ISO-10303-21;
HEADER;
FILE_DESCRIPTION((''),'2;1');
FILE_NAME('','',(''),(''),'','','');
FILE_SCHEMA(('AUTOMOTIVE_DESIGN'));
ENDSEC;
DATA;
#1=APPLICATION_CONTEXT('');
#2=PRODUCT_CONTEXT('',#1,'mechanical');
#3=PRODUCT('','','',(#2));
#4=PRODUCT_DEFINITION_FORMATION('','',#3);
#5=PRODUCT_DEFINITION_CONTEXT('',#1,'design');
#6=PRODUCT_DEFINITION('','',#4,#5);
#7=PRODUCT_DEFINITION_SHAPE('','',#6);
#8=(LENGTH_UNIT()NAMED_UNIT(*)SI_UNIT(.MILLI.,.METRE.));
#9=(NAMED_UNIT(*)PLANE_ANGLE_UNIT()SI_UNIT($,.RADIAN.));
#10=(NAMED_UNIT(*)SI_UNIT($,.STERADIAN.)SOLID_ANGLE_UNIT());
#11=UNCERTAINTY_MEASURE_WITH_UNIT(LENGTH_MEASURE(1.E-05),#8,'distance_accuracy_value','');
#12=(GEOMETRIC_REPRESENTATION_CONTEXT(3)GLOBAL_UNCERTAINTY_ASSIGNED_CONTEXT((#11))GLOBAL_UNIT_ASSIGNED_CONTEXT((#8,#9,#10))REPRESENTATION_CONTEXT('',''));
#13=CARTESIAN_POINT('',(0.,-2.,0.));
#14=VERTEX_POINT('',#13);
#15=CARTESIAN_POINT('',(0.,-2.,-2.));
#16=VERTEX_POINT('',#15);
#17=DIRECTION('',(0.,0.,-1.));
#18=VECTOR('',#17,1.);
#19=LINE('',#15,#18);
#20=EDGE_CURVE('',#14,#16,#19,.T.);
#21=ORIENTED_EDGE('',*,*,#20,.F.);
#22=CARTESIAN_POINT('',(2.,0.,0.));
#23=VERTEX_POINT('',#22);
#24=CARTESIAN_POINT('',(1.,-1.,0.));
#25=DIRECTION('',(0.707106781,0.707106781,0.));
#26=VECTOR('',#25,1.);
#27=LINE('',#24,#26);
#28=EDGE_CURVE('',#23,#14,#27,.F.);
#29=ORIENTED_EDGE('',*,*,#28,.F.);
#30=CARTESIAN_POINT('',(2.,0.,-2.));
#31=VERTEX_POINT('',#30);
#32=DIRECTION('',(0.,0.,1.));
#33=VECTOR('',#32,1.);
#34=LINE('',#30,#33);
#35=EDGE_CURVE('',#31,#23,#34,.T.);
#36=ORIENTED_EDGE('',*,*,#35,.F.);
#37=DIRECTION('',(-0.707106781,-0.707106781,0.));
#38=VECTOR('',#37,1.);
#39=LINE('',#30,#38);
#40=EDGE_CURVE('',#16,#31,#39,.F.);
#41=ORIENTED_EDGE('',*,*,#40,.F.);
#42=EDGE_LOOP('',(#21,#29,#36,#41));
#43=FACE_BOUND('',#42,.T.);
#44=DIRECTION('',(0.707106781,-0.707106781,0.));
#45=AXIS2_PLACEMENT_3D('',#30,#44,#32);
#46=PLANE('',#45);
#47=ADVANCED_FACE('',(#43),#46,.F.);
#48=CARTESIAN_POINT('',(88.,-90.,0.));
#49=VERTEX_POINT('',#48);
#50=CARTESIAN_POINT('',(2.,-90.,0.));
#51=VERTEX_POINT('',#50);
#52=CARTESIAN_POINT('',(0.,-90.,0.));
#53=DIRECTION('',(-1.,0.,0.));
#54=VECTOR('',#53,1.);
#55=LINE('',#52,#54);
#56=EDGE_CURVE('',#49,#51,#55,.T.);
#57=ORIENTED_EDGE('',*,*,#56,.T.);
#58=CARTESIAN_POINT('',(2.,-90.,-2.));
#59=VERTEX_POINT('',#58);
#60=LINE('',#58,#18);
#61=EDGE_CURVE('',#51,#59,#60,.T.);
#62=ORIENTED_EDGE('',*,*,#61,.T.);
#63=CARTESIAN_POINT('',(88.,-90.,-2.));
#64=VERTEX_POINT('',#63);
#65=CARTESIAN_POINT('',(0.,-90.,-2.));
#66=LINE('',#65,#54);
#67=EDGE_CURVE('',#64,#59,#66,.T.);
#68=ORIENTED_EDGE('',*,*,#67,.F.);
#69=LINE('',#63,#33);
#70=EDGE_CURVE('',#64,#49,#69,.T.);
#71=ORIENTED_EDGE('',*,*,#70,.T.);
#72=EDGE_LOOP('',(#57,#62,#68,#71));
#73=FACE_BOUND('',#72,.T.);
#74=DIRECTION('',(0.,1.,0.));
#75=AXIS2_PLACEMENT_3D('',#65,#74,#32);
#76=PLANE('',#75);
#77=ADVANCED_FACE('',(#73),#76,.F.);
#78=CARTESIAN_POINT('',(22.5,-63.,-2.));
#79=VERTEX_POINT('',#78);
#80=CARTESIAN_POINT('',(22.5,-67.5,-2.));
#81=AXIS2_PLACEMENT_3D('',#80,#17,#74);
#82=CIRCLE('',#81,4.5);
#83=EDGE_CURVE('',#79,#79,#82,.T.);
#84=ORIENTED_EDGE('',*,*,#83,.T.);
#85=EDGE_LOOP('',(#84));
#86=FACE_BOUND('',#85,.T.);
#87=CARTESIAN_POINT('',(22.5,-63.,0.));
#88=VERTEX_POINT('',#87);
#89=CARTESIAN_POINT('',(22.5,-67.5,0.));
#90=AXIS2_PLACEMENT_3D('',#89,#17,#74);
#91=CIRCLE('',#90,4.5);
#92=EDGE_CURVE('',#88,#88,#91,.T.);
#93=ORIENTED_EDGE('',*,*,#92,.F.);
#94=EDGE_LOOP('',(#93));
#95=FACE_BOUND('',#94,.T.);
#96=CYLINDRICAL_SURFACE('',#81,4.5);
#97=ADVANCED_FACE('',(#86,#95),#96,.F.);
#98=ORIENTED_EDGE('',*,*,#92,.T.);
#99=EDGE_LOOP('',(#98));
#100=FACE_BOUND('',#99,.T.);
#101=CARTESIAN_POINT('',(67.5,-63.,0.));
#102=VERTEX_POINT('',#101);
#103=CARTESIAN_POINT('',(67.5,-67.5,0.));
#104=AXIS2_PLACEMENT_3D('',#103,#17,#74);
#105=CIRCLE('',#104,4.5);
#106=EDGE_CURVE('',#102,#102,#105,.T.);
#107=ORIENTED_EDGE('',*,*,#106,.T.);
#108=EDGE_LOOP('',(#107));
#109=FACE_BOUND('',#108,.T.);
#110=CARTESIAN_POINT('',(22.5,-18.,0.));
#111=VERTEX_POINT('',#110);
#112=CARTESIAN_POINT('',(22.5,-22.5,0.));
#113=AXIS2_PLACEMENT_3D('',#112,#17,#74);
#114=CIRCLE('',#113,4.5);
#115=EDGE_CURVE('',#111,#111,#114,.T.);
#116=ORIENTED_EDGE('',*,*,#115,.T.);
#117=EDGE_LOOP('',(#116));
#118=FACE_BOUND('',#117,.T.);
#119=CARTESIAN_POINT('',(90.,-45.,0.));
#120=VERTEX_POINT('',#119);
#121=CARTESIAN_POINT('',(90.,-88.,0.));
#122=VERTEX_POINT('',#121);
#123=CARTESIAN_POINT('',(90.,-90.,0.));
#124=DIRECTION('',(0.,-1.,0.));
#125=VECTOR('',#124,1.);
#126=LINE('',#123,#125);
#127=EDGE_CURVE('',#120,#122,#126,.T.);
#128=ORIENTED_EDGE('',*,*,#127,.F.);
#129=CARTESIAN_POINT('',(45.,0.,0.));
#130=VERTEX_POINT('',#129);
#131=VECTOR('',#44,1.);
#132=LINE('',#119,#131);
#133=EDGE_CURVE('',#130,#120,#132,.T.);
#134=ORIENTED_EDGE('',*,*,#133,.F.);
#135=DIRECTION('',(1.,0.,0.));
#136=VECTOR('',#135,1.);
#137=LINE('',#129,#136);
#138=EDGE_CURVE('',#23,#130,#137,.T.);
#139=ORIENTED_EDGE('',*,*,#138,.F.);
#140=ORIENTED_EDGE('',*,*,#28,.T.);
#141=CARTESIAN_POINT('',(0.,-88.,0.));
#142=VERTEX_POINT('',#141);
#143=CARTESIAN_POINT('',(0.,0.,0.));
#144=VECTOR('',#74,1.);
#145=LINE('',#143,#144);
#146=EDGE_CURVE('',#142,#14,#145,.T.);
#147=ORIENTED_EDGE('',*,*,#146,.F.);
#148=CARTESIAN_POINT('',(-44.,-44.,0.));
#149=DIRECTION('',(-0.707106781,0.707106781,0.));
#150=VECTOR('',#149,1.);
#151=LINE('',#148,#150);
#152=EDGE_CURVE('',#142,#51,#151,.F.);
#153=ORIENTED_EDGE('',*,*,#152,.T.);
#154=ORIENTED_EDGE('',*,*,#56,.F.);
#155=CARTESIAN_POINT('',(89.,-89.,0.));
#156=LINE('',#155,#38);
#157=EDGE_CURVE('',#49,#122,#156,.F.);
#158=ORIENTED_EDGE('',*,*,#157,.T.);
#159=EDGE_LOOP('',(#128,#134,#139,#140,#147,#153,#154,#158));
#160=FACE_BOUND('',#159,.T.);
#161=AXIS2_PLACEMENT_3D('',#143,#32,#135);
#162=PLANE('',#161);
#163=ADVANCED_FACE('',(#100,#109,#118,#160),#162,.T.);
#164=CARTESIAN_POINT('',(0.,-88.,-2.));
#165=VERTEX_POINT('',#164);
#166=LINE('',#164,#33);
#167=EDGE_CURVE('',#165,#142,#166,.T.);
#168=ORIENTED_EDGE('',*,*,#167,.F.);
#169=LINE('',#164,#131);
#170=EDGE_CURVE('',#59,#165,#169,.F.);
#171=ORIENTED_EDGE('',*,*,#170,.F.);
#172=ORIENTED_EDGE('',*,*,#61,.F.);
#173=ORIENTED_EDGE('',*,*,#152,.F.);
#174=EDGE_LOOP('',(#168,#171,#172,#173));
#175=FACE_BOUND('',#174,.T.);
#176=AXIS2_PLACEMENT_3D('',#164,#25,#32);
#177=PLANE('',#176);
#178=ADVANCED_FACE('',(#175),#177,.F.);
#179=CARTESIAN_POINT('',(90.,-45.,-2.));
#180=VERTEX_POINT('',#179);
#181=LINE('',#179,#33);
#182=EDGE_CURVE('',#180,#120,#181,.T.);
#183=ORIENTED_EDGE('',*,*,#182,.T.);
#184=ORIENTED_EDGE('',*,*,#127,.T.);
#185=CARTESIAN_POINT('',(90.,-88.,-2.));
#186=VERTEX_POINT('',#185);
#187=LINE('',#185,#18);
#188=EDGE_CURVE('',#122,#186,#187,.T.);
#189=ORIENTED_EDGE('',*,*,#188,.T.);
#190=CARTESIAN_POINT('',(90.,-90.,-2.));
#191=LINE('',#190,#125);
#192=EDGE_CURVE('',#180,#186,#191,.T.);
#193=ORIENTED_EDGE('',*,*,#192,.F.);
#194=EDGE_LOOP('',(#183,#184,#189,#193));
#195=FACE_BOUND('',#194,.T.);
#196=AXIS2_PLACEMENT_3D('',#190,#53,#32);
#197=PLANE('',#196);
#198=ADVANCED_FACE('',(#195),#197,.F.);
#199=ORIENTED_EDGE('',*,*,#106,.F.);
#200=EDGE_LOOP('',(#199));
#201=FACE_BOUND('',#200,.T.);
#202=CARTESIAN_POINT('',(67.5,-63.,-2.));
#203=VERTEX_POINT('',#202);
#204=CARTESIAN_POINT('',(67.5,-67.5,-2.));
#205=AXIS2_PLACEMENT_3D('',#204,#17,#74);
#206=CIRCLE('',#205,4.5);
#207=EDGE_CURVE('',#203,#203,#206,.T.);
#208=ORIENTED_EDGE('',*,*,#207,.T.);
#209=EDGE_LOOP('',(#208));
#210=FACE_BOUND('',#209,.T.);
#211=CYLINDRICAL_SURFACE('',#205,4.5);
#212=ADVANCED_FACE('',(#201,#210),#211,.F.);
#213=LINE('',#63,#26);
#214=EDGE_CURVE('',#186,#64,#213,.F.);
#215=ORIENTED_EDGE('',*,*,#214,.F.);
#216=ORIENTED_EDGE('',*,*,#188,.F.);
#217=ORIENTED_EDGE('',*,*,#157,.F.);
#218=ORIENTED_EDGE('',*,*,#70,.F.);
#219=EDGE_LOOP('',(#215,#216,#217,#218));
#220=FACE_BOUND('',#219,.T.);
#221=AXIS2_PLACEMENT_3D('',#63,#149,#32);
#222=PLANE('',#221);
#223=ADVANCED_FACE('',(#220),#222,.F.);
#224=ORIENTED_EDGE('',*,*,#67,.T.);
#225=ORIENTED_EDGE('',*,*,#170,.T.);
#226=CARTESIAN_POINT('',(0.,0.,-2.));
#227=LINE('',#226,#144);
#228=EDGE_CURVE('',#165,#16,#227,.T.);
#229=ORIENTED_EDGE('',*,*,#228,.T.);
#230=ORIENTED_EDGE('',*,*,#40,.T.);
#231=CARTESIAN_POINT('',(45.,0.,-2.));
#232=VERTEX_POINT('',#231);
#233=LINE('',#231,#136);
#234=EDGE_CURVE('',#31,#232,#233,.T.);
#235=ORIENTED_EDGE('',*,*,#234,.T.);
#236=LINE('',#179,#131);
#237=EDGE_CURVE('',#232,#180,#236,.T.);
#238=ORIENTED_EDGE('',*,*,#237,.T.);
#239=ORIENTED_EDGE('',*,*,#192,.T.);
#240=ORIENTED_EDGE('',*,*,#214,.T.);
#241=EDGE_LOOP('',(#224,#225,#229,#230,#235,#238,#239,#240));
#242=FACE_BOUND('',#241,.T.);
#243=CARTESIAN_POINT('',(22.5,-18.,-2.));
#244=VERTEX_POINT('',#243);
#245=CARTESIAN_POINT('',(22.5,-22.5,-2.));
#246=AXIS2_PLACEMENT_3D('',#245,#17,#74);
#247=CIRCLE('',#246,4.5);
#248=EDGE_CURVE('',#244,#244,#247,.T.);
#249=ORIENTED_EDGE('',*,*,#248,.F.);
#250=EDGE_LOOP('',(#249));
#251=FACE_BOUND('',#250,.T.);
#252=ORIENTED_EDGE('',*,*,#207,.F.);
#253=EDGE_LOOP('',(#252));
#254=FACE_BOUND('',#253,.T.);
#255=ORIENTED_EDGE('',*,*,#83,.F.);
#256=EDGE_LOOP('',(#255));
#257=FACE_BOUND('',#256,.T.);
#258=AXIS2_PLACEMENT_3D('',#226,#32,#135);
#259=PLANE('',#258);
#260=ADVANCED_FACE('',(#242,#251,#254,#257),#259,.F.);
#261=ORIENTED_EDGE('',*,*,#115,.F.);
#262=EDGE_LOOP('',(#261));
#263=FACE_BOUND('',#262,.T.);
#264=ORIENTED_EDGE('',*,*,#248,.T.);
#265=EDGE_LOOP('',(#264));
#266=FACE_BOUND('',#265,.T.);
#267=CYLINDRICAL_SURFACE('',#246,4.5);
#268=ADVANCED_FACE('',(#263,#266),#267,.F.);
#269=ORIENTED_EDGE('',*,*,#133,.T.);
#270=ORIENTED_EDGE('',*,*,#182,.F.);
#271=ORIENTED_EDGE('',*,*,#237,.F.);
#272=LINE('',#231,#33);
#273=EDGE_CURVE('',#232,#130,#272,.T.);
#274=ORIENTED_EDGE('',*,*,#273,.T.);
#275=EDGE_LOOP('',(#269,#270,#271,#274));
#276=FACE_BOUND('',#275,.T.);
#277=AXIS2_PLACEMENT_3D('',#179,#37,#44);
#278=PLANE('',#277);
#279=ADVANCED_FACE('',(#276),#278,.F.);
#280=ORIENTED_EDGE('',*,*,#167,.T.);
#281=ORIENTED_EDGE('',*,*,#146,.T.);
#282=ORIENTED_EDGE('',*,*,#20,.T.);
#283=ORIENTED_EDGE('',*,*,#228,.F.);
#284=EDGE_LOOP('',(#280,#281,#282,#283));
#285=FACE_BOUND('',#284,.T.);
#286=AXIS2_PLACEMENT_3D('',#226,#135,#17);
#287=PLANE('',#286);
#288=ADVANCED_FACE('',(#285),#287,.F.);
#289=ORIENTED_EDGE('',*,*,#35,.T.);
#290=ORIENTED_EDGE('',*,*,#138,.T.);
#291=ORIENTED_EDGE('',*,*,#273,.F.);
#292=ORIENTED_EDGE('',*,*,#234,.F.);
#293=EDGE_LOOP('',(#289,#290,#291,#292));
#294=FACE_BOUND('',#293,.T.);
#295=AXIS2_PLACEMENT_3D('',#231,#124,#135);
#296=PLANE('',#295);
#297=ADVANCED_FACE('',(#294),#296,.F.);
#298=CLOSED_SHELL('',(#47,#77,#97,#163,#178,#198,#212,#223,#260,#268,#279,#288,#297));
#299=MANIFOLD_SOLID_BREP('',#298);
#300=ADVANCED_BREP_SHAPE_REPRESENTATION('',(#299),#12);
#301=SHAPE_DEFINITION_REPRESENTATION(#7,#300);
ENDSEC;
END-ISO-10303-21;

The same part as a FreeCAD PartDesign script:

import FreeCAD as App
import Part
import Sketcher
from FreeCAD import Vector
Q = App.Units.Quantity


def edges_at(feature, points):
    """Names of the edges that pass closest to the given points."""
    edges = feature.Shape.Edges
    near = lambda p: min(range(len(edges)), key=lambda i: edges[i].distToShape(Part.Vertex(*p))[0])
    return sorted({f"Edge{near(p) + 1}" for p in points})

doc = App.newDocument("Part")
body = doc.addObject("PartDesign::Body", "Body")

# Sketch on XY plane
sketch1 = body.newObject("Sketcher::SketchObject", "Sketch")
sketch1.AttachmentSupport = (doc.getObject("XY_Plane"), [""])
sketch1.MapMode = "FlatFace"
sketch1.addGeometry(Part.LineSegment(Vector(0, -90, 0), Vector(0, 0, 0)), False)
sketch1.addGeometry(Part.LineSegment(Vector(0, 0, 0), Vector(45, 0, 0)), False)
sketch1.addGeometry(Part.LineSegment(Vector(45, 0, 0), Vector(90, -45, 0)), False)
sketch1.addGeometry(Part.LineSegment(Vector(90, -45, 0), Vector(90, -90, 0)), False)
sketch1.addGeometry(Part.LineSegment(Vector(90, -90, 0), Vector(0, -90, 0)), False)
sketch1.addConstraint(Sketcher.Constraint("Coincident", 0, 2, 1, 1))
sketch1.addConstraint(Sketcher.Constraint("Coincident", 1, 2, 2, 1))
sketch1.addConstraint(Sketcher.Constraint("Coincident", 2, 2, 3, 1))
sketch1.addConstraint(Sketcher.Constraint("Coincident", 3, 2, 4, 1))
sketch1.addConstraint(Sketcher.Constraint("Coincident", 4, 2, 0, 1))
sketch1.addConstraint(Sketcher.Constraint("Vertical", 0))
sketch1.addConstraint(Sketcher.Constraint("Horizontal", 1))
sketch1.addConstraint(Sketcher.Constraint("Vertical", 3))
sketch1.addConstraint(Sketcher.Constraint("Horizontal", 4))
sketch1.addConstraint(Sketcher.Constraint("Coincident", 0, 2, -1, 1))
sketch1.addConstraint(Sketcher.Constraint("Equal", 4, 0))
sketch1.addConstraint(Sketcher.Constraint("Equal", 1, 3))
sketch1.addConstraint(Sketcher.Constraint("DistanceX", 1, 1, 1, 2, Q("45 mm")))
sketch1.addConstraint(Sketcher.Constraint("DistanceX", 4, 2, 4, 1, Q("90 mm")))
pad1 = body.newObject("PartDesign::Pad", "Pad")
pad1.Profile = sketch1
pad1.Length = 2
pad1.Reversed = True

# Sketch on XY plane
sketch2 = body.newObject("Sketcher::SketchObject", "Sketch001")
sketch2.AttachmentSupport = (doc.getObject("XY_Plane"), [""])
sketch2.MapMode = "FlatFace"
sketch2.AttachmentOffset = App.Placement(Vector(0, 0, -2), App.Rotation())
sketch2.addGeometry(Part.Circle(Vector(22.5, -67.5, 0), Vector(0, 0, 1), 4.5), False)
sketch2.addGeometry(Part.Circle(Vector(22.5, -22.5, 0), Vector(0, 0, 1), 4.5), False)
sketch2.addGeometry(Part.Circle(Vector(67.5, -67.5, 0), Vector(0, 0, 1), 4.5), False)
sketch2.addConstraint(Sketcher.Constraint("Equal", 0, 1))
sketch2.addConstraint(Sketcher.Constraint("Equal", 1, 2))
sketch2.addConstraint(Sketcher.Constraint("Horizontal", 0, 3, 2, 3))
sketch2.addConstraint(Sketcher.Constraint("Vertical", 0, 3, 1, 3))
sketch2.addConstraint(Sketcher.Constraint("Diameter", 0, Q("9 mm")))
sketch2.addConstraint(Sketcher.Constraint("DistanceY", 0, 3, 1, 3, Q("45 mm")))
sketch2.addConstraint(Sketcher.Constraint("DistanceX", 0, 3, 2, 3, Q("45 mm")))
sketch2.addConstraint(Sketcher.Constraint("DistanceX", -1, 1, 0, 3, Q("22.5 mm")))
sketch2.addConstraint(Sketcher.Constraint("DistanceY", 0, 3, -1, 1, Q("67.5 mm")))
doc.recompute()
hole = body.newObject("PartDesign::Hole", "Hole")
hole.Profile = sketch2
hole.ThreadType = "None"
hole.Diameter = 9
hole.DepthType = "ThroughAll"
hole.Reversed = True
doc.recompute()

chamfer = body.newObject("PartDesign::Chamfer", "Chamfer")
chamfer.Base = (hole, edges_at(hole, [(0, 0, -1), (0, -90, -1), (90, -90, -1)]))
chamfer.Size = 2

doc.recompute()
